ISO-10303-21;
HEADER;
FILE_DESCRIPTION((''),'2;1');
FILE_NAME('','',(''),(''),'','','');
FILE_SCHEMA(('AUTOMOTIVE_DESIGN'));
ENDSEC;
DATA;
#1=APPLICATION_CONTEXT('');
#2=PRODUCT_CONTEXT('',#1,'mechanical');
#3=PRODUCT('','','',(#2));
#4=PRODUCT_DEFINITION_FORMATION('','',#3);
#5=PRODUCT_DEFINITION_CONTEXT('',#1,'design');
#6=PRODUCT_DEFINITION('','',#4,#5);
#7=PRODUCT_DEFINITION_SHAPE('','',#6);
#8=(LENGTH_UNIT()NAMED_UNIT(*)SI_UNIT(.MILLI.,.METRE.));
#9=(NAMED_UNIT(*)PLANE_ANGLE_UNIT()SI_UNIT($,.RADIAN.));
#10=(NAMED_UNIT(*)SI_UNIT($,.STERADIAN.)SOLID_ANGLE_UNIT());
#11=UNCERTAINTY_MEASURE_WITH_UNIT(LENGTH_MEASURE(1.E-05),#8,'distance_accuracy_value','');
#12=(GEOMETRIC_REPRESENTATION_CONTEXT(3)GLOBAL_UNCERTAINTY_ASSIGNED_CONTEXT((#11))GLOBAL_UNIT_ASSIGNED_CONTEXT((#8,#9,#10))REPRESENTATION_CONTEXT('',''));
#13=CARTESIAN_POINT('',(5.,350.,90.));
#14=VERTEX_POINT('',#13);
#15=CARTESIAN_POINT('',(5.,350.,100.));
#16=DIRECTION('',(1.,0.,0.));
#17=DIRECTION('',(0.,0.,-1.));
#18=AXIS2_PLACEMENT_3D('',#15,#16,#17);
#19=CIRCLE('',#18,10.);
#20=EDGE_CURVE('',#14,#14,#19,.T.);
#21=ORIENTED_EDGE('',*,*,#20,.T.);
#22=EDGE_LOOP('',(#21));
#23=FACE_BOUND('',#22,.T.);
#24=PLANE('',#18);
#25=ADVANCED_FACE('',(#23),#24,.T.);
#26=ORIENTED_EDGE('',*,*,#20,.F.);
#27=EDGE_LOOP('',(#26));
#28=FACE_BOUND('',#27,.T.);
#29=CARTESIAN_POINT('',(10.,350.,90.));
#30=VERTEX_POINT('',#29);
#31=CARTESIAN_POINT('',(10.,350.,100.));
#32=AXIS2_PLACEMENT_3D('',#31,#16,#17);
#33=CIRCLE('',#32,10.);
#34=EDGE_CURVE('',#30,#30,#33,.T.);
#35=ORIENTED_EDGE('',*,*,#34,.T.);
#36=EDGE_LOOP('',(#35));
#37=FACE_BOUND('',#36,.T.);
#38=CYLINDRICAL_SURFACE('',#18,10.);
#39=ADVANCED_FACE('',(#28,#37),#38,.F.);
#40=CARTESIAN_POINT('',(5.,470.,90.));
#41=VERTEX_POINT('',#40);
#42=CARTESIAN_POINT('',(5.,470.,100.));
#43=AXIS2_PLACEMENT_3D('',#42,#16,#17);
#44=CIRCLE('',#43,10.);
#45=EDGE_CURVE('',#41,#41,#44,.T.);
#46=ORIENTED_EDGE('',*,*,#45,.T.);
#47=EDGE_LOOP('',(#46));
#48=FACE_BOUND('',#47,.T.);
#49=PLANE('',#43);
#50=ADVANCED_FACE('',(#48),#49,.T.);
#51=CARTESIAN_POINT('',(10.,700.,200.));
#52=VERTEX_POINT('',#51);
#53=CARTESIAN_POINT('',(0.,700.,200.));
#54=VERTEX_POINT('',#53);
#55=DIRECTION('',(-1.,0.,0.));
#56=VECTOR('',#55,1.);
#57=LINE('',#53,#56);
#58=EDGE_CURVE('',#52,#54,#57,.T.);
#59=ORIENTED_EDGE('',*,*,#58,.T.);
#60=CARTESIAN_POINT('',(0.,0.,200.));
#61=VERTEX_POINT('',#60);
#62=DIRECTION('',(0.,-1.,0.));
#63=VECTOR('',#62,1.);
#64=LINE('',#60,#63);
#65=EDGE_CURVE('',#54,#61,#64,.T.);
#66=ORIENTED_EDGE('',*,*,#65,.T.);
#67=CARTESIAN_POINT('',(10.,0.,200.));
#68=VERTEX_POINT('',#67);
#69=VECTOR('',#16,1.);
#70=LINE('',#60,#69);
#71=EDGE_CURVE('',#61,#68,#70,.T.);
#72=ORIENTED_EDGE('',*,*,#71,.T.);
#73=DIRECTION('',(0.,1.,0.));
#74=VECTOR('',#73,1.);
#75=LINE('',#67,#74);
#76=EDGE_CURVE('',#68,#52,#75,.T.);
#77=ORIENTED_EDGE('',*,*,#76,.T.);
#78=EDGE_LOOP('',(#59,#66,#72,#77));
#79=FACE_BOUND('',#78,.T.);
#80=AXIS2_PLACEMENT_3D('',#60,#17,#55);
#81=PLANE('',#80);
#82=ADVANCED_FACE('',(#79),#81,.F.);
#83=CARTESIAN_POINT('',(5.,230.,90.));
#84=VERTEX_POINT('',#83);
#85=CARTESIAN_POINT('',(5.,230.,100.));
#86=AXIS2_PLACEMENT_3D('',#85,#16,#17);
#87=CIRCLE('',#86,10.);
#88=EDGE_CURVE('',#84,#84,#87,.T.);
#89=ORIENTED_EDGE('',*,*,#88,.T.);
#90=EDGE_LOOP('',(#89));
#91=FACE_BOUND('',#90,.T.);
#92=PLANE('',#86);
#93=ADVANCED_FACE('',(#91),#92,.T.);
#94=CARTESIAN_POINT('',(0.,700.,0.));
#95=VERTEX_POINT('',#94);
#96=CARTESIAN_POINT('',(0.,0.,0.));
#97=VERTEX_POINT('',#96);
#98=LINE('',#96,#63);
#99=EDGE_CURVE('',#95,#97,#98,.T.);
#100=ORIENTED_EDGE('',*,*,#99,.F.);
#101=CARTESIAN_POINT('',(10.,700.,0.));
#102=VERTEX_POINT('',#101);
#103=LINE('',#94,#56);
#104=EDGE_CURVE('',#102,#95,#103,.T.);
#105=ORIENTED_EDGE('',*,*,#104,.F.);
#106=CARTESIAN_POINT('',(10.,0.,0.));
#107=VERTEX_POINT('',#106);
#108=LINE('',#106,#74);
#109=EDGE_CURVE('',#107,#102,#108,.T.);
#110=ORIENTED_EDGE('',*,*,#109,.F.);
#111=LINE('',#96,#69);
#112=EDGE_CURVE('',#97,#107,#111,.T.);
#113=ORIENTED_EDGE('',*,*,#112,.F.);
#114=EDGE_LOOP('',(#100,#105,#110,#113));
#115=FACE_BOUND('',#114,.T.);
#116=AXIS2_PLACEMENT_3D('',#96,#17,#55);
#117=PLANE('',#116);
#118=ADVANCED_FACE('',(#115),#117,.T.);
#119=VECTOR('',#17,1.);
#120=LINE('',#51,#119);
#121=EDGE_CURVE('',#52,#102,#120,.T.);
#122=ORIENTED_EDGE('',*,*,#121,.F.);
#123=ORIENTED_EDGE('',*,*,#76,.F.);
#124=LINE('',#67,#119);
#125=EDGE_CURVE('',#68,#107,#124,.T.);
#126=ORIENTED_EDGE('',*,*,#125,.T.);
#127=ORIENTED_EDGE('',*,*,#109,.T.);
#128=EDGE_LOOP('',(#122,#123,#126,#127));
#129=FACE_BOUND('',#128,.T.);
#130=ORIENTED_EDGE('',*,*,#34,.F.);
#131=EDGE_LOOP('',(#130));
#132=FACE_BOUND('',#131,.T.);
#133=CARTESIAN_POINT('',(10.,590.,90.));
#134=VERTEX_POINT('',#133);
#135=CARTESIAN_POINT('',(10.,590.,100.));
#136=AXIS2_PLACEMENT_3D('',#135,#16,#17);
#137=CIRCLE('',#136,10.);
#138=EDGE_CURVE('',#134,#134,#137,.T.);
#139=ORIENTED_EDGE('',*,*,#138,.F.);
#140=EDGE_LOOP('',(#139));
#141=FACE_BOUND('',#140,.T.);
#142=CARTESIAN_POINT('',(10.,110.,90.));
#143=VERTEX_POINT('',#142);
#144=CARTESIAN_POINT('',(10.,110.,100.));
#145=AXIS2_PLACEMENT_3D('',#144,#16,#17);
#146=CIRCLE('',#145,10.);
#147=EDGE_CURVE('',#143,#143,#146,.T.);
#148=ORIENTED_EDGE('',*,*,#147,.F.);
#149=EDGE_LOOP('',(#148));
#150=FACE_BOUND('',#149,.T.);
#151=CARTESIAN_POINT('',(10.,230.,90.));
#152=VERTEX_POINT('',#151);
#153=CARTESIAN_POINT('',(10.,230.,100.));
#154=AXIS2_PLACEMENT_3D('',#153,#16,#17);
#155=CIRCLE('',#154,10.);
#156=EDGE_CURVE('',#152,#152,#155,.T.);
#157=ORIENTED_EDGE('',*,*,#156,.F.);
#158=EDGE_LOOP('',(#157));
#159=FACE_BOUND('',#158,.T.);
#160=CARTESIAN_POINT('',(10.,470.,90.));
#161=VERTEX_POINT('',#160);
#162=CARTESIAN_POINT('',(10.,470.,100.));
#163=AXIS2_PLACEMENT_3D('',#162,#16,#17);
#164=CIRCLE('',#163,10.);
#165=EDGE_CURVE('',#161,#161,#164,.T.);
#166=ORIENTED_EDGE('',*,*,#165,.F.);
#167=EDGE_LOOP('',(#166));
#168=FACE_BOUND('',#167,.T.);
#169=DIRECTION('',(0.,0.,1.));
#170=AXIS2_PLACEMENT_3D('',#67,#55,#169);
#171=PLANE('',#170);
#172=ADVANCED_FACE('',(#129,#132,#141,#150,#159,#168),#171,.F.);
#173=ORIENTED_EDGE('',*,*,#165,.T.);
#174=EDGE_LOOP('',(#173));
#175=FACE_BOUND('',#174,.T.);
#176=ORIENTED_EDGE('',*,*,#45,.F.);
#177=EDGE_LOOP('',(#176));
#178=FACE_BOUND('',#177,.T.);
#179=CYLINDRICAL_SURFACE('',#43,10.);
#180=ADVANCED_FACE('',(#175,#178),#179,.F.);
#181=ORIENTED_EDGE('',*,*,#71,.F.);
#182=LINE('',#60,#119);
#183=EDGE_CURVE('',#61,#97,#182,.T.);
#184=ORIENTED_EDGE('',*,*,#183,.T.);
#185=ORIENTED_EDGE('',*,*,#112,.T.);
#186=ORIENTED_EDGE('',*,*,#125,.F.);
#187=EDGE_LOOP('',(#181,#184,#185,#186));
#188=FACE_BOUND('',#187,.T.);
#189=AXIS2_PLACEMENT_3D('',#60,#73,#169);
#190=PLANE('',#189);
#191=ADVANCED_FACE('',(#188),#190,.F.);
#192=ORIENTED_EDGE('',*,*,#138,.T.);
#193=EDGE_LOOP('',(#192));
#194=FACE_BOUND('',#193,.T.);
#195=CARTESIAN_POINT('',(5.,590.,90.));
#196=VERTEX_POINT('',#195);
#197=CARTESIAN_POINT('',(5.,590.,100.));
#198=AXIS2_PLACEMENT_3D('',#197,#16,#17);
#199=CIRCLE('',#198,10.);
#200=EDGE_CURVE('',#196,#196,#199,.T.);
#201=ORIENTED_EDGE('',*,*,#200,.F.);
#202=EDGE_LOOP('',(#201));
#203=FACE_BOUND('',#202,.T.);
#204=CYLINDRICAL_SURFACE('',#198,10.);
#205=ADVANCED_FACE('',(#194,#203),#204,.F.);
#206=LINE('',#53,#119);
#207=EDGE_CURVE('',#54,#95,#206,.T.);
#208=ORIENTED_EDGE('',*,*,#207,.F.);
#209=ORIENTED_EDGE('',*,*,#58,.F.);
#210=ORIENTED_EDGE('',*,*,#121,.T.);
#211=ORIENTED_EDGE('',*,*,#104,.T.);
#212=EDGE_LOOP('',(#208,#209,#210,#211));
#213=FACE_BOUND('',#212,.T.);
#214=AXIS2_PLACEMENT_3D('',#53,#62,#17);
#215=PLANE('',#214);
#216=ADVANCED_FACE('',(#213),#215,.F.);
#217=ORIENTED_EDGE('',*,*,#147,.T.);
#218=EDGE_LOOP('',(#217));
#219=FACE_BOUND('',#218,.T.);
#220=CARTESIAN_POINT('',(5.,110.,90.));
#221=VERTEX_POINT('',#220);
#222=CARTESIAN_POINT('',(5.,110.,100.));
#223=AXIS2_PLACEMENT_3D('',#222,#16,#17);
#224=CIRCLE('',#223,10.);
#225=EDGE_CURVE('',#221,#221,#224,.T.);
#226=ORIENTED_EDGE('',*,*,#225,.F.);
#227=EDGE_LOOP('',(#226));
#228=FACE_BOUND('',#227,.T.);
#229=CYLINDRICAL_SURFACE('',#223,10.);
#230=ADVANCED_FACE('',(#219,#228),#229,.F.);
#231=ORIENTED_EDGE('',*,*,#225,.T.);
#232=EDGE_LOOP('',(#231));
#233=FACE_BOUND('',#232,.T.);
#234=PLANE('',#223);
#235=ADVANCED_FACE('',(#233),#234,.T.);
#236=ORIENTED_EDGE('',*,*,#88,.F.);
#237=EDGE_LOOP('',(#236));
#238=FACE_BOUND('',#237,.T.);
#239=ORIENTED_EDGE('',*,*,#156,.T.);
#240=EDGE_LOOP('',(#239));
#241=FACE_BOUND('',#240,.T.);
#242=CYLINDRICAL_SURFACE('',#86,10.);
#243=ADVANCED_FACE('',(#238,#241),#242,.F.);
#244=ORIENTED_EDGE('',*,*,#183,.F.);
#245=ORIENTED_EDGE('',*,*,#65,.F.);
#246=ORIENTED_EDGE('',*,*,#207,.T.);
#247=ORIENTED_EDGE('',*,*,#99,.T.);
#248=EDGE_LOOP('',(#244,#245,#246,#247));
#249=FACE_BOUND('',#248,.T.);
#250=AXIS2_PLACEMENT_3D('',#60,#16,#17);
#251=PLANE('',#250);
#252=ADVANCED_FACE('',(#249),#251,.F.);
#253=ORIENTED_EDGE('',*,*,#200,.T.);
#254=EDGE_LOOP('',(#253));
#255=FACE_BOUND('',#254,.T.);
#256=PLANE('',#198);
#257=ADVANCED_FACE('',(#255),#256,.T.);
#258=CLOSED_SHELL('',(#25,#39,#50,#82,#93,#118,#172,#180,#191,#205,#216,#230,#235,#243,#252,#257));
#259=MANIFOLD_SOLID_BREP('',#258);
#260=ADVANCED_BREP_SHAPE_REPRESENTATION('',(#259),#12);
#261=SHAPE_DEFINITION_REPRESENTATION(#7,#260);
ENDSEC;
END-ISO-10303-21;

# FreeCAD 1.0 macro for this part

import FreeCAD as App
import Part
import Sketcher
from FreeCAD import Vector


def add_polygon(sketch, points):
    """Adds a closed chain of lines whose ends are joined by coincident constraints."""
    first, n = sketch.GeometryCount, len(points)
    for a, b in zip(points, points[1:] + points[:1]):
        sketch.addGeometry(Part.LineSegment(App.Vector(*a, 0), App.Vector(*b, 0)), False)
    for i in range(n):
        sketch.addConstraint(Sketcher.Constraint("Coincident", first + i, 2, first + (i + 1) % n, 1))

doc = App.newDocument("Part")
params = doc.addObject("Spreadsheet::Sheet", "Params")
for row, (alias, value) in enumerate([
    ("sketch1_width", "10 mm"),
    ("sketch1_height", "700 mm"),
    ("pad1_length", "200 mm"),
    ("sketch2_diameter", "20 mm"),
    ("pocket1_length", "5 mm"),
], start=1):
    params.set(f"A{row}", alias)
    params.set(f"B{row}", "=" + value)
    params.setAlias(f"B{row}", alias)

body = doc.addObject("PartDesign::Body", "Body")

sketch1 = body.newObject("Sketcher::SketchObject", "Sketch")
sketch1.AttachmentSupport = (doc.getObject("XY_Plane"), [""])
sketch1.MapMode = "FlatFace"
add_polygon(sketch1, [(0, 700), (0, 0), (10, 0), (10, 700)])
sketch1.addConstraint(Sketcher.Constraint("Vertical", 0))
sketch1.addConstraint(Sketcher.Constraint("Horizontal", 1))
sketch1.addConstraint(Sketcher.Constraint("Vertical", 2))
sketch1.addConstraint(Sketcher.Constraint("Horizontal", 3))
sketch1.addConstraint(Sketcher.Constraint("Coincident", 0, 2, -1, 1))
sketch1.addConstraint(Sketcher.Constraint("DistanceX", 1, 1, 1, 2, 10.0))
sketch1.addConstraint(Sketcher.Constraint("DistanceY", 0, 2, 0, 1, 700.0))
sketch1.setExpression("Constraints[9]", "Params.sketch1_width")
sketch1.setExpression("Constraints[10]", "Params.sketch1_height")
pad1 = body.newObject("PartDesign::Pad", "Pad")
pad1.Profile = sketch1
pad1.setExpression("Length", "Params.pad1_length")

sketch2 = body.newObject("Sketcher::SketchObject", "Sketch001")
sketch2.AttachmentSupport = (doc.getObject("YZ_Plane"), [""])
sketch2.MapMode = "FlatFace"
sketch2.AttachmentOffset = App.Placement(Vector(0, 0, 10), App.Rotation())
sketch2.addGeometry(Part.Circle(Vector(110, 100, 0), Vector(0, 0, 1), 10), False)
sketch2.addGeometry(Part.Circle(Vector(230, 100, 0), Vector(0, 0, 1), 10), False)
sketch2.addGeometry(Part.Circle(Vector(350, 100, 0), Vector(0, 0, 1), 10), False)
sketch2.addGeometry(Part.Circle(Vector(470, 100, 0), Vector(0, 0, 1), 10), False)
sketch2.addGeometry(Part.Circle(Vector(590, 100, 0), Vector(0, 0, 1), 10), False)
sketch2.addConstraint(Sketcher.Constraint("Equal", 0, 1))
sketch2.addConstraint(Sketcher.Constraint("Equal", 1, 2))
sketch2.addConstraint(Sketcher.Constraint("Equal", 2, 3))
sketch2.addConstraint(Sketcher.Constraint("Equal", 3, 4))
sketch2.addConstraint(Sketcher.Constraint("Horizontal", 0, 3, 1, 3))
sketch2.addConstraint(Sketcher.Constraint("Horizontal", 1, 3, 2, 3))
sketch2.addConstraint(Sketcher.Constraint("Horizontal", 2, 3, 3, 3))
sketch2.addConstraint(Sketcher.Constraint("Horizontal", 3, 3, 4, 3))
sketch2.addConstraint(Sketcher.Constraint("Diameter", 0, 20.0))
sketch2.addConstraint(Sketcher.Constraint("DistanceX", -1, 1, 0, 3, 110.0))
sketch2.addConstraint(Sketcher.Constraint("DistanceY", -1, 1, 0, 3, 100.0))
sketch2.addConstraint(Sketcher.Constraint("DistanceX", -1, 1, 1, 3, 230.0))
sketch2.addConstraint(Sketcher.Constraint("DistanceX", -1, 1, 2, 3, 350.0))
sketch2.addConstraint(Sketcher.Constraint("DistanceX", -1, 1, 3, 3, 470.0))
sketch2.addConstraint(Sketcher.Constraint("DistanceX", -1, 1, 4, 3, 590.0))
sketch2.setExpression("Constraints[8]", "Params.sketch2_diameter")
pocket1 = body.newObject("PartDesign::Pocket", "Pocket")
pocket1.Profile = sketch2
pocket1.setExpression("Length", "Params.pocket1_length")

doc.recompute()
